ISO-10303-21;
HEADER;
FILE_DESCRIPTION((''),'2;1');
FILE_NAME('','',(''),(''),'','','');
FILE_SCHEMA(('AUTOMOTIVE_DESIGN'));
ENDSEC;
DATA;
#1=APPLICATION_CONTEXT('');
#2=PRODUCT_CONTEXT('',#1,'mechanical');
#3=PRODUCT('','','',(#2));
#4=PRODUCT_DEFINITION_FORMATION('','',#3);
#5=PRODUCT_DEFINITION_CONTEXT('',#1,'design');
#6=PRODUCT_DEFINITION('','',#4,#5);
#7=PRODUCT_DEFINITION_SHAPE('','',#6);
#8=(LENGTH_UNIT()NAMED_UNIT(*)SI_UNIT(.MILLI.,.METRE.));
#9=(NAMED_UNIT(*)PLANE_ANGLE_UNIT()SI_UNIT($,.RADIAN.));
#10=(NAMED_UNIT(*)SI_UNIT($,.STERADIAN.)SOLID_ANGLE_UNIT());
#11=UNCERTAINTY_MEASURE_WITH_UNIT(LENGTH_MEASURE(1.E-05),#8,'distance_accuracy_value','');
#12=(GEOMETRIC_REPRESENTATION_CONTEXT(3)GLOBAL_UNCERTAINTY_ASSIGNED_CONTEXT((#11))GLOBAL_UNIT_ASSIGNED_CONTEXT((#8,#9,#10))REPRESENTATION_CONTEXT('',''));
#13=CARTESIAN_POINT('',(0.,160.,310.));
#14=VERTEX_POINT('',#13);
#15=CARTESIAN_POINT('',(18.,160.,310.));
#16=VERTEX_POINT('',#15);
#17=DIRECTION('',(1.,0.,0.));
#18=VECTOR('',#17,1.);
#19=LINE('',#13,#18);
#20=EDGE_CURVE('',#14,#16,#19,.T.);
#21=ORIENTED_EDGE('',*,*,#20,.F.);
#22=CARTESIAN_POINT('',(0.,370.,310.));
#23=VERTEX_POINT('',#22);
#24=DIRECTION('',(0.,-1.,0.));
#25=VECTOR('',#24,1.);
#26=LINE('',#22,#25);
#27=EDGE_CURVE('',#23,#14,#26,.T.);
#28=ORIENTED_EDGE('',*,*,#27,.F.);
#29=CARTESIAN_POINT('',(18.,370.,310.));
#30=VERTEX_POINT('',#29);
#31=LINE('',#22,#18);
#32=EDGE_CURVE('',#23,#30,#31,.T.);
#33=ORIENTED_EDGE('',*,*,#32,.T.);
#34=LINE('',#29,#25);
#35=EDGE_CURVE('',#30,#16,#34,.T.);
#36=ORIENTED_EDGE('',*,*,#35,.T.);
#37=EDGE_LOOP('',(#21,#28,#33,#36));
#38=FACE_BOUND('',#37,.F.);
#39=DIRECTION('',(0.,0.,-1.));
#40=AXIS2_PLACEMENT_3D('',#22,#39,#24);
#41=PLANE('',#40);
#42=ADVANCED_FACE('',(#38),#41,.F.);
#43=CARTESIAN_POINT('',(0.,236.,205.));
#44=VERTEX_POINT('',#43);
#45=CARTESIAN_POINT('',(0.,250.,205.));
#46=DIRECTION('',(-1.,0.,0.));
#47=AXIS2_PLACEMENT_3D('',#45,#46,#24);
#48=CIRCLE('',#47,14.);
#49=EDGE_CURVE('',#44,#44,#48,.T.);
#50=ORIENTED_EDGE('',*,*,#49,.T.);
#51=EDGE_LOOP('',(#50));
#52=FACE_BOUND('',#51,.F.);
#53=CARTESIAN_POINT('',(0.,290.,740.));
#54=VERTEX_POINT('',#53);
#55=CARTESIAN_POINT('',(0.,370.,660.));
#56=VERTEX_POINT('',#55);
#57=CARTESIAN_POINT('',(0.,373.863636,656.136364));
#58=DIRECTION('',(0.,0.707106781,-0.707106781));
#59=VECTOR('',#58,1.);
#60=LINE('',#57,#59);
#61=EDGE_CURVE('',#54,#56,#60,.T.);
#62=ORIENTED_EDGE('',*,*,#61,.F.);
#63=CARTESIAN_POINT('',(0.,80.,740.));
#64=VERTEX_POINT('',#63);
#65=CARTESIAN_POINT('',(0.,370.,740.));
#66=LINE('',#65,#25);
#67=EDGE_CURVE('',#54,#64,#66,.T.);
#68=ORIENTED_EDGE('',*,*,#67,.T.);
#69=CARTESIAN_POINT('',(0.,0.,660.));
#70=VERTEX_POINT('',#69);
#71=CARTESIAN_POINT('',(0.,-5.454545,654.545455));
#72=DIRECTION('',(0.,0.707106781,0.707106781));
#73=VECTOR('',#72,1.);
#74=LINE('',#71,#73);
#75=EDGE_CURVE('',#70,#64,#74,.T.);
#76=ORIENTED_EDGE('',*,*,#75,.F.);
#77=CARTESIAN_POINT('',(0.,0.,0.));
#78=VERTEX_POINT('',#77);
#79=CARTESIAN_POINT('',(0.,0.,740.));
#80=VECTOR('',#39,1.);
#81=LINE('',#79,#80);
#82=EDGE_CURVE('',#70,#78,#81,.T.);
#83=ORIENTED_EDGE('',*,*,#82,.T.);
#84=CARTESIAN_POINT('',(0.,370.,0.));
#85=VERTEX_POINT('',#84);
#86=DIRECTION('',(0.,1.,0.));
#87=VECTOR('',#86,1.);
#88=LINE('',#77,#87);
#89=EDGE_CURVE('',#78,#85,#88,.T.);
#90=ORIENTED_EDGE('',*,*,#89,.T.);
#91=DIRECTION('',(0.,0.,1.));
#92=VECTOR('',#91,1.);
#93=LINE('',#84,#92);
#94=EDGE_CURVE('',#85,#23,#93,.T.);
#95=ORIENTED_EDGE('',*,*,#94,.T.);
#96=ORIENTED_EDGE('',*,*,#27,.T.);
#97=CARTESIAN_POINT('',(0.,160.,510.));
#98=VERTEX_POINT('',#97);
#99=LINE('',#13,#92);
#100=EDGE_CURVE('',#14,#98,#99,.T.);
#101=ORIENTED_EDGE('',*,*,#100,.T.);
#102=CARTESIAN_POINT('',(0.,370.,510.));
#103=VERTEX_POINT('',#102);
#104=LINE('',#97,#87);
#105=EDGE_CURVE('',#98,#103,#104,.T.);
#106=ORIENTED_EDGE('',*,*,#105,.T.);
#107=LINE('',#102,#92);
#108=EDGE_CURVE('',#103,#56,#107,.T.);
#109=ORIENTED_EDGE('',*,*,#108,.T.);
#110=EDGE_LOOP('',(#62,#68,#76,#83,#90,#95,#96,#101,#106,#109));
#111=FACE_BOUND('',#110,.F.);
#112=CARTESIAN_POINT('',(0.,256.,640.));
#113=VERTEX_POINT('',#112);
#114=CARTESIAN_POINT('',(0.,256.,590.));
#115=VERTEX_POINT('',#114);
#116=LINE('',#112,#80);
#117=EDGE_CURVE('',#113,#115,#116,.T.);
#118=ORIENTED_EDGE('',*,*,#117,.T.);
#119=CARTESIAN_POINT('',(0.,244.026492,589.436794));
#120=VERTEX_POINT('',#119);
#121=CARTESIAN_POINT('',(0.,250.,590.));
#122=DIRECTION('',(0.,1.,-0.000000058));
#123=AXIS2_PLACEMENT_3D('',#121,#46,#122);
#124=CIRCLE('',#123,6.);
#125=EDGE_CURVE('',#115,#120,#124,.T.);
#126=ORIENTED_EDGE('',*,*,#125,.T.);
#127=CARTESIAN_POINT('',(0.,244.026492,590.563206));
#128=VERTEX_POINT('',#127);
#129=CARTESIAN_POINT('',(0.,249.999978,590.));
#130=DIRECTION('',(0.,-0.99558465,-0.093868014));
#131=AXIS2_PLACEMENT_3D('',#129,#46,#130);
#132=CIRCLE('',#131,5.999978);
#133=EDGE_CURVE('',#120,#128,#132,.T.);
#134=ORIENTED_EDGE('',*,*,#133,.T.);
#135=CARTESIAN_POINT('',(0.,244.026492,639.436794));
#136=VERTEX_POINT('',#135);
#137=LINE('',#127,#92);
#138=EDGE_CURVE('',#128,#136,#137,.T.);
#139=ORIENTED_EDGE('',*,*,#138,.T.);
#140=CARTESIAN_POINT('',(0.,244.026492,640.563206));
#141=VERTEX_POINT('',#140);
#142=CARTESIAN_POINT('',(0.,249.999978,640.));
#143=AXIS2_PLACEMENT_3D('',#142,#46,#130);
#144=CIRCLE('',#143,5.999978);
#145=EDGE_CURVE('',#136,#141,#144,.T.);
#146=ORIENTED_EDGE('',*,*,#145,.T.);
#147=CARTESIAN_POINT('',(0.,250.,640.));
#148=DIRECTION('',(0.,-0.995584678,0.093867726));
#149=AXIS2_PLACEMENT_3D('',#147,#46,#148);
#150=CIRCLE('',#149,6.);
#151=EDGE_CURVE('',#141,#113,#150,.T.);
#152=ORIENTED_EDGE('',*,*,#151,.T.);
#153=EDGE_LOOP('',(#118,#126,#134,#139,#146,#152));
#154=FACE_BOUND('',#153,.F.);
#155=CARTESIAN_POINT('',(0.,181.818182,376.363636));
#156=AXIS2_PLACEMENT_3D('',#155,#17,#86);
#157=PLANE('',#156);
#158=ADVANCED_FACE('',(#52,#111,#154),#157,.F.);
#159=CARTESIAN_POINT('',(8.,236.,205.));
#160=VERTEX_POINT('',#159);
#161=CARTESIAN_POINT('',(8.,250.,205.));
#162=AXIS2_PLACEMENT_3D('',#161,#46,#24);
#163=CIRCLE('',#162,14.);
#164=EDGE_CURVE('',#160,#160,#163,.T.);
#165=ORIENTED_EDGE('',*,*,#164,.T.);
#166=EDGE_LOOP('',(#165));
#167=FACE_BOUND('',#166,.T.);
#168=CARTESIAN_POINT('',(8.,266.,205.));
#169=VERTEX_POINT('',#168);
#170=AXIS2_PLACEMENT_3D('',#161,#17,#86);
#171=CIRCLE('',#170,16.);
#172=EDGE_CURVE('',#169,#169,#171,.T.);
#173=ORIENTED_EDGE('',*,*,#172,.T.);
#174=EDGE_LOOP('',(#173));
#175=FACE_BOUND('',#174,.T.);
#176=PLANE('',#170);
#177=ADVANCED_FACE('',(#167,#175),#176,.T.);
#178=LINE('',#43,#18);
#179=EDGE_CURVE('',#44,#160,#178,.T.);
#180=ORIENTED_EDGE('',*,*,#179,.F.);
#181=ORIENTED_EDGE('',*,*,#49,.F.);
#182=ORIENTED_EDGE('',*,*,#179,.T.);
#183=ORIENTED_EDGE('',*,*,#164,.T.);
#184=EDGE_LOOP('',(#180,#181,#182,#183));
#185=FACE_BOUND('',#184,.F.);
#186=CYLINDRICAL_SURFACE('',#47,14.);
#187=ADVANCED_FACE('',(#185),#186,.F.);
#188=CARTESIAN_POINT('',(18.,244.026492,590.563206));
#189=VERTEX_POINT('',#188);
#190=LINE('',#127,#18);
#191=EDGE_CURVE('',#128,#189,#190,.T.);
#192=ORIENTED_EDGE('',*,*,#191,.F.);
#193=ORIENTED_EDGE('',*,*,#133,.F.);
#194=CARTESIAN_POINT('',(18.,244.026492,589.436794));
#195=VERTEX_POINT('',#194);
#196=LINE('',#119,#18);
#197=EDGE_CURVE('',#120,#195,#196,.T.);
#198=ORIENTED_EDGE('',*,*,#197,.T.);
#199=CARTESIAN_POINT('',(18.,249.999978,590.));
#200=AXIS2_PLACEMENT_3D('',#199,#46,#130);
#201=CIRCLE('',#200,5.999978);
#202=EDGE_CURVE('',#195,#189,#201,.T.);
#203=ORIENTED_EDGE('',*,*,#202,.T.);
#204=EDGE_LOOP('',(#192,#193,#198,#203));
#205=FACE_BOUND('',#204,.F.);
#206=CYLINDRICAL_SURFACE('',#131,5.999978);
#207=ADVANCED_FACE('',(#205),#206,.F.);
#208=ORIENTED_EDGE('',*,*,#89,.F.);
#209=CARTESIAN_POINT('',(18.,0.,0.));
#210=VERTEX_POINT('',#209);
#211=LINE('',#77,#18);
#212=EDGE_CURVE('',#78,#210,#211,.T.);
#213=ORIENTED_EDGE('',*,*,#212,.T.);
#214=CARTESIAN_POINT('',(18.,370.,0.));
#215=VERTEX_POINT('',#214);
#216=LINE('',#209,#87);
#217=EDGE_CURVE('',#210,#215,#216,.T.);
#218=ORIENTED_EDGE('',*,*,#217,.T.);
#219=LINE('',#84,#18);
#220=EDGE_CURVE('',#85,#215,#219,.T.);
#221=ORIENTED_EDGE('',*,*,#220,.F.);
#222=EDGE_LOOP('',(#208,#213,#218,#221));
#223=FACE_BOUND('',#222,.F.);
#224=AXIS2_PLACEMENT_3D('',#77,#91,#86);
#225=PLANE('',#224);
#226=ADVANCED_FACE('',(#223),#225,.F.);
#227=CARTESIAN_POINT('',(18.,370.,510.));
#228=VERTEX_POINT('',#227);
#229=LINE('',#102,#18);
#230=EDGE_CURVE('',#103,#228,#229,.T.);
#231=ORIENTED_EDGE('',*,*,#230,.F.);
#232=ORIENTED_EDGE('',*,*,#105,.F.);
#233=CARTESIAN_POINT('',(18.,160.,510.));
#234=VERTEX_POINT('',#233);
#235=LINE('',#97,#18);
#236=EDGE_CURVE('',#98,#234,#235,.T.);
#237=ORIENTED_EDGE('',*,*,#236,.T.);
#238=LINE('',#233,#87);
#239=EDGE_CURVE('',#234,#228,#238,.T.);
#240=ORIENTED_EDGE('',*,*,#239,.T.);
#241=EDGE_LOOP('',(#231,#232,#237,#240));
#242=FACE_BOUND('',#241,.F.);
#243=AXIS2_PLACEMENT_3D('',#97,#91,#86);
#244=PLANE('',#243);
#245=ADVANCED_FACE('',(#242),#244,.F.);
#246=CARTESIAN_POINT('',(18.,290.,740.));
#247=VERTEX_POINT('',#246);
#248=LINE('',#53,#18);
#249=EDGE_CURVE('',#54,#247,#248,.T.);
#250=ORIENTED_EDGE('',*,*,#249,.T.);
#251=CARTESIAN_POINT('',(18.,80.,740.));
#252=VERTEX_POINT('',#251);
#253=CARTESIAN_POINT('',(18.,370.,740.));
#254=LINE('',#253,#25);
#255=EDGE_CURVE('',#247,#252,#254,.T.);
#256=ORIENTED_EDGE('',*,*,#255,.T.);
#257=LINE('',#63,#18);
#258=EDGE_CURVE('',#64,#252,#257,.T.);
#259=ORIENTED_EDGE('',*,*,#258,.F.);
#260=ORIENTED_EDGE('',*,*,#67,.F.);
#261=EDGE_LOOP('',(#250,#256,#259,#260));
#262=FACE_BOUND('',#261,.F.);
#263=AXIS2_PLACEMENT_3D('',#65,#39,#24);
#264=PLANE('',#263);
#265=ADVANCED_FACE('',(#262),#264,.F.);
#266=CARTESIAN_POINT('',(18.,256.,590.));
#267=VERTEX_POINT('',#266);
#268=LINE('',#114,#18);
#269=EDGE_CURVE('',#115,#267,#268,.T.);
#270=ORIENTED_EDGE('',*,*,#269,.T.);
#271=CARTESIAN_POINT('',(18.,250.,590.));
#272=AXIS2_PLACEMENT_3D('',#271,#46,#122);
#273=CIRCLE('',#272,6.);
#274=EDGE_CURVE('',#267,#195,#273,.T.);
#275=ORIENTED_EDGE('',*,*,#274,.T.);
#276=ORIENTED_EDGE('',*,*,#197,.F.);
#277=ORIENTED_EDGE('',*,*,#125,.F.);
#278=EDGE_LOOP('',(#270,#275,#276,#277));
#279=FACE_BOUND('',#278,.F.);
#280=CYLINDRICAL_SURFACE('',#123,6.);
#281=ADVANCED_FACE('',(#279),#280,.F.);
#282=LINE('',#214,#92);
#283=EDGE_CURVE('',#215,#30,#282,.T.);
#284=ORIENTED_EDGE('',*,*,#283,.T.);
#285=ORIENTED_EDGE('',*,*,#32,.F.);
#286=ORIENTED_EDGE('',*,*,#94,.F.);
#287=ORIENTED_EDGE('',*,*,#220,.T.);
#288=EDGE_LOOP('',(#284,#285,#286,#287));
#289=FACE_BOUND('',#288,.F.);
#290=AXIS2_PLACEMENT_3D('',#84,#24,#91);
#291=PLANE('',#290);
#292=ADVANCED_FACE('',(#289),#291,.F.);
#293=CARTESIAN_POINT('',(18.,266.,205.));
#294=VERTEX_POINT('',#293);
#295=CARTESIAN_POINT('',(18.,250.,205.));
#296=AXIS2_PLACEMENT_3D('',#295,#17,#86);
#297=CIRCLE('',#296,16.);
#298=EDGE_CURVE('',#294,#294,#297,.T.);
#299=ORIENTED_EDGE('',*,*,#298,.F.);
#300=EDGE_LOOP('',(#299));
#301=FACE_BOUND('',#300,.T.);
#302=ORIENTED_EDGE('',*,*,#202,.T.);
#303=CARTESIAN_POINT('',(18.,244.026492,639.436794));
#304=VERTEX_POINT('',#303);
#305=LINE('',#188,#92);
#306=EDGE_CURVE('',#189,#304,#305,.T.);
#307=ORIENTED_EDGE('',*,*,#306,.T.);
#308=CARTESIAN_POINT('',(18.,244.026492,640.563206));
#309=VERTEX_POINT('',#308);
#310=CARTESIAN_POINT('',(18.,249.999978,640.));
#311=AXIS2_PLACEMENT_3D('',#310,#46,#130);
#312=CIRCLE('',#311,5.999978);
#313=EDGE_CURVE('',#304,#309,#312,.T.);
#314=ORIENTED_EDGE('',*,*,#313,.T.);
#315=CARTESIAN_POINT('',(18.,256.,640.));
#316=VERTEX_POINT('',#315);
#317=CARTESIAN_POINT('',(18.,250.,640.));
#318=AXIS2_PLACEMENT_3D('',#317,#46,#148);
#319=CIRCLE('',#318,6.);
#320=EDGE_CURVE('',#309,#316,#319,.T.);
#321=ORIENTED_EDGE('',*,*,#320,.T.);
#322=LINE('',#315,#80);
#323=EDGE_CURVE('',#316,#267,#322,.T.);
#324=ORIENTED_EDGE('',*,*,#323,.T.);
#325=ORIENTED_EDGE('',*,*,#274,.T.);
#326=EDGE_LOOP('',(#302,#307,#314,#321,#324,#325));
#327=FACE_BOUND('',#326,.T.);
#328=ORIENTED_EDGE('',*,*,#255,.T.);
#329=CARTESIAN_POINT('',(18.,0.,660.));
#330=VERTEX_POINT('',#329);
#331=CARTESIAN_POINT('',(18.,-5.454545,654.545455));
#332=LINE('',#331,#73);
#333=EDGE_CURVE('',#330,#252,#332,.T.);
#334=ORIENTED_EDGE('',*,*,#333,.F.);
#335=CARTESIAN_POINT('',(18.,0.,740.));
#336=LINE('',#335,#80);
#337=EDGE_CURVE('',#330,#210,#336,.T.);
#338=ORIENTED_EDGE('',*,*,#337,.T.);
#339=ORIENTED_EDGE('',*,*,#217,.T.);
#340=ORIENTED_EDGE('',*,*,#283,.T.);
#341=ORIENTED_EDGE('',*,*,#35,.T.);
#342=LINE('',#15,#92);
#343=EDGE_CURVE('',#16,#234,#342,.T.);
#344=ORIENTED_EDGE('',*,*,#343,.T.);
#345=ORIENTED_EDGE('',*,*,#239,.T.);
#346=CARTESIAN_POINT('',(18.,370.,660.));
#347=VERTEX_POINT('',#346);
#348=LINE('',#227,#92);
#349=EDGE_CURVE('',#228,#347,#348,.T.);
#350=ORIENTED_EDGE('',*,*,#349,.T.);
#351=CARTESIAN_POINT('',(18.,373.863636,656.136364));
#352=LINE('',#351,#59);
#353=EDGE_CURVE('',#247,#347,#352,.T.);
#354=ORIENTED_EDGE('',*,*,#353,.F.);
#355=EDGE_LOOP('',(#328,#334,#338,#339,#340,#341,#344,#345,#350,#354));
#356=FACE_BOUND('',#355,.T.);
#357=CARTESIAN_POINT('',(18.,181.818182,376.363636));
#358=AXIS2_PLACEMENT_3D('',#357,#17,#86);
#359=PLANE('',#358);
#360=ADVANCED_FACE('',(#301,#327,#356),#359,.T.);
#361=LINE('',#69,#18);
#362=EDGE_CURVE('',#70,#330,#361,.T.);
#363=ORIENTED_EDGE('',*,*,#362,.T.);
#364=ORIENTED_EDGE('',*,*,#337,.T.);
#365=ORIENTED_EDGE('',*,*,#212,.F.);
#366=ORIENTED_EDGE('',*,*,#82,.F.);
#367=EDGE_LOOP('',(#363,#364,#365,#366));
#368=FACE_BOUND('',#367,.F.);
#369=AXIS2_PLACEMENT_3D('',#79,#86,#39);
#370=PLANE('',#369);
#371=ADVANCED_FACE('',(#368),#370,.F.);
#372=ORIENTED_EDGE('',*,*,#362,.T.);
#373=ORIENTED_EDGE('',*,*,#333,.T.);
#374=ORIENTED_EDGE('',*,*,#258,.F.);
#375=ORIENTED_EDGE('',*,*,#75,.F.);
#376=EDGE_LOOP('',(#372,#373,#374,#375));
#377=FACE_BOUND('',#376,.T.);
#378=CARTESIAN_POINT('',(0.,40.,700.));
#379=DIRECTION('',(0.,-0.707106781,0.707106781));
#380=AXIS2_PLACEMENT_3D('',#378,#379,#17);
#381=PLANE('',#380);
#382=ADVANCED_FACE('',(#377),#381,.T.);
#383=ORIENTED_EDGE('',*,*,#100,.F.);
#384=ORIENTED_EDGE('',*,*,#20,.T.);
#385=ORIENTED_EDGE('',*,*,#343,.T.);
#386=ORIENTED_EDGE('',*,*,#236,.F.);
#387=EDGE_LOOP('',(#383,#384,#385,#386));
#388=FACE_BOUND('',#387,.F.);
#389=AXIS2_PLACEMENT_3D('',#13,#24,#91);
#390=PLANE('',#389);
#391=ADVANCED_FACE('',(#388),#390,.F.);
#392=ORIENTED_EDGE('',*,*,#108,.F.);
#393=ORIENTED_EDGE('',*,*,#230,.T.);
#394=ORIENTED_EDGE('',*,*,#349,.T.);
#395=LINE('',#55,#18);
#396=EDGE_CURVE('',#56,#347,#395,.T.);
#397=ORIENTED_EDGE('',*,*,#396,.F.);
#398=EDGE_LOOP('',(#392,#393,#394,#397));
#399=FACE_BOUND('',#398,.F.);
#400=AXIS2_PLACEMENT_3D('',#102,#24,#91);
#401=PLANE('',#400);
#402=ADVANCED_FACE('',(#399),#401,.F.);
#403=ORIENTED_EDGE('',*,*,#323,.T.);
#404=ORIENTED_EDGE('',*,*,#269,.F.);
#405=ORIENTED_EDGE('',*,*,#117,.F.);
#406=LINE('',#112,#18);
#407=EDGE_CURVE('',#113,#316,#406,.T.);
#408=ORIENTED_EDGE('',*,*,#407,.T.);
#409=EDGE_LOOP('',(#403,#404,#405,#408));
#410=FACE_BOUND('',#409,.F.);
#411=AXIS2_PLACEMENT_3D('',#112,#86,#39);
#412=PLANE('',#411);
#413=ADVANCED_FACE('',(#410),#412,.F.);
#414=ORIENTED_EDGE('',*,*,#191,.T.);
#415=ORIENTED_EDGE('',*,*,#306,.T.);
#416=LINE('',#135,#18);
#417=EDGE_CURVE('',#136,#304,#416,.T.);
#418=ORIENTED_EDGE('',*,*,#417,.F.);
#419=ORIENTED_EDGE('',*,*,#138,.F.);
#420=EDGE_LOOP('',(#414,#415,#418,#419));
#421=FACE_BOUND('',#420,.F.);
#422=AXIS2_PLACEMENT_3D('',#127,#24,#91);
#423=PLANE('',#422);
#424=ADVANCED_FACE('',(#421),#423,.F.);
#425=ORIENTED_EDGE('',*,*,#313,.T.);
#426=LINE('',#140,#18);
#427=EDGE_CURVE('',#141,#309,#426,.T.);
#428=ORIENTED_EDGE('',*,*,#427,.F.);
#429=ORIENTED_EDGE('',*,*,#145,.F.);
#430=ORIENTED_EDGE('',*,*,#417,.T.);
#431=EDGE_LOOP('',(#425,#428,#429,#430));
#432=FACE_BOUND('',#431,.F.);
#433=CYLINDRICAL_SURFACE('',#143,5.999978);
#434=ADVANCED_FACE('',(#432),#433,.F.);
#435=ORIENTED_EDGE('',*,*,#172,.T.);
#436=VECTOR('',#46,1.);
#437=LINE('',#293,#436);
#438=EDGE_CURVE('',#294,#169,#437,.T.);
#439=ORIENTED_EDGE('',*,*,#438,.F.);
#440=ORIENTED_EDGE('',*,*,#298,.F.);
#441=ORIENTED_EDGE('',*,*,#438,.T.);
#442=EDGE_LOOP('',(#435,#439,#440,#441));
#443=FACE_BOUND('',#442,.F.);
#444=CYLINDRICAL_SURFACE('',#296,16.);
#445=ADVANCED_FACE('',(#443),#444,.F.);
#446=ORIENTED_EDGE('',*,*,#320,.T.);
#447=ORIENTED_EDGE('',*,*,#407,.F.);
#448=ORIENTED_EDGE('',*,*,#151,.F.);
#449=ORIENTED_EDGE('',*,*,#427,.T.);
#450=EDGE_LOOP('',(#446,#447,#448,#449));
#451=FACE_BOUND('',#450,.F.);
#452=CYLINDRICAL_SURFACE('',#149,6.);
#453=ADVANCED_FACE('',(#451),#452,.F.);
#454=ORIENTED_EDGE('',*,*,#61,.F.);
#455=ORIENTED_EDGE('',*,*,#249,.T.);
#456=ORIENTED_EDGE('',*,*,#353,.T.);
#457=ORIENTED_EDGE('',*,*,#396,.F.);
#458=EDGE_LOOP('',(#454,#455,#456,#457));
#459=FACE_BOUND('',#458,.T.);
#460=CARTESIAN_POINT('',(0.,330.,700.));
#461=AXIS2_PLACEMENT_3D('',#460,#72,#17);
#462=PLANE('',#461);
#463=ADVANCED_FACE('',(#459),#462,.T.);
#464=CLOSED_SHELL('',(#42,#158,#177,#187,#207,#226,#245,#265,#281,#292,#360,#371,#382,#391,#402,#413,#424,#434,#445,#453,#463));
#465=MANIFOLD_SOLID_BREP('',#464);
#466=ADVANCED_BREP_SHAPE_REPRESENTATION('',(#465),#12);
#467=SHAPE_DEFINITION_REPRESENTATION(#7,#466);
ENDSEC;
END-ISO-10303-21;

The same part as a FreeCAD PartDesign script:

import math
import FreeCAD as App
import Part
import Sketcher

V = App.Vector


def edges_at(feature, points):
    """Names of the edges that pass closest to the given points."""
    edges = feature.Shape.Edges
    near = lambda p: min(range(len(edges)), key=lambda i: edges[i].distToShape(Part.Vertex(*p))[0])
    return sorted({f"Edge{near(p) + 1}" for p in points})


def add_polygon(sketch, points):
    """Adds a closed chain of lines whose ends are joined by coincident constraints."""
    first, n = sketch.GeometryCount, len(points)
    for a, b in zip(points, points[1:] + points[:1]):
        sketch.addGeometry(Part.LineSegment(App.Vector(*a, 0), App.Vector(*b, 0)), False)
    for i in range(n):
        sketch.addConstraint(Sketcher.Constraint("Coincident", first + i, 2, first + (i + 1) % n, 1))

doc = App.newDocument("Part")
body = doc.addObject("PartDesign::Body", "Body")

sketch1 = body.newObject("Sketcher::SketchObject", "Sketch")
sketch1.AttachmentSupport = (doc.getObject("YZ_Plane"), [""])
sketch1.MapMode = "FlatFace"
add_polygon(sketch1, [(0, 740), (0, 0), (370, 0), (370, 310), (160, 310), (160, 510), (370, 510), (370, 740)])
sketch1.addGeometry(Part.Circle(V(250, 205, 0), V(0, 0, 1), 6), False)
sketch1.addGeometry(Part.ArcOfCircle(Part.Circle(V(249.999978, 640, 0), V(0, 0, 1), 5.999978), math.radians(174.613829), math.radians(185.386171)), False)
sketch1.addGeometry(Part.ArcOfCircle(Part.Circle(V(250, 640, 0), V(0, 0, 1), 6), math.radians(0.000003), math.radians(174.613846)), False)
sketch1.addGeometry(Part.LineSegment(V(256, 640, 0), V(256, 590, 0)), False)
sketch1.addGeometry(Part.ArcOfCircle(Part.Circle(V(250, 590, 0), V(0, 0, 1), 6), math.radians(-174.613846), math.radians(-0.000003)), False)
sketch1.addGeometry(Part.ArcOfCircle(Part.Circle(V(249.999978, 590, 0), V(0, 0, 1), 5.999978), math.radians(174.613829), math.radians(185.386171)), False)
sketch1.addGeometry(Part.LineSegment(V(244.026492, 590.563206, 0), V(244.026492, 639.436794, 0)), False)
sketch1.addConstraint([
    Sketcher.Constraint("Coincident", 9, 1, 10, 2),
    Sketcher.Constraint("Coincident", 10, 1, 11, 1),
    Sketcher.Constraint("Coincident", 11, 2, 12, 2),
    Sketcher.Constraint("Coincident", 12, 1, 13, 2),
    Sketcher.Constraint("Coincident", 13, 1, 14, 1),
    Sketcher.Constraint("Coincident", 14, 2, 9, 2),
    Sketcher.Constraint("Vertical", 0),
    Sketcher.Constraint("Horizontal", 1),
    Sketcher.Constraint("Vertical", 2),
    Sketcher.Constraint("Horizontal", 3),
    Sketcher.Constraint("Vertical", 4),
    Sketcher.Constraint("Horizontal", 5),
    Sketcher.Constraint("Vertical", 6),
    Sketcher.Constraint("Horizontal", 7),
    Sketcher.Constraint("Vertical", 11),
    Sketcher.Constraint("Vertical", 14),
    Sketcher.Constraint("Coincident", 0, 2, -1, 1),
    Sketcher.Constraint("Diameter", 8, 12.0),
    Sketcher.Constraint("Radius", 10, 6.0),
    Sketcher.Constraint("Radius", 12, 6.0),
    Sketcher.Constraint("DistanceX", 1, 1, 1, 2, 370.0),
    Sketcher.Constraint("DistanceX", 3, 2, 3, 1, 210.0),
    Sketcher.Constraint("DistanceX", 5, 1, 5, 2, 210.0),
    Sketcher.Constraint("DistanceY", 0, 2, 0, 1, 740.0),
    Sketcher.Constraint("DistanceY", 2, 1, 2, 2, 310.0),
    Sketcher.Constraint("DistanceY", 4, 1, 4, 2, 200.0),
    Sketcher.Constraint("DistanceY", 11, 2, 11, 1, 50.0),
    Sketcher.Constraint("DistanceX", -1, 1, 8, 3, 250.0),
    Sketcher.Constraint("DistanceY", -1, 1, 8, 3, 205.0),
    Sketcher.Constraint("DistanceY", -1, 1, 9, 3, 640.0),
    Sketcher.Constraint("DistanceX", -1, 1, 10, 3, 250.0),
    Sketcher.Constraint("DistanceY", -1, 1, 10, 3, 640.0),
    Sketcher.Constraint("DistanceY", -1, 1, 12, 3, 590.0),
    Sketcher.Constraint("DistanceY", -1, 1, 13, 3, 590.0),
    Sketcher.Constraint("DistanceY", -1, 1, 10, 1, 640.0),
    Sketcher.Constraint("Radius", 9, 5.999978),
    Sketcher.Constraint("Radius", 13, 5.999978),
    Sketcher.Constraint("DistanceY", 14, 1, 14, 2, 48.873588),
    Sketcher.Constraint("DistanceX", 9, 1, 10, 3, 5.973508),
    Sketcher.Constraint("DistanceX", 12, 1, 12, 3, 5.973508),
])
pad1 = body.newObject("PartDesign::Pad", "Pad")
pad1.Profile = sketch1
pad1.Length = 18
doc.recompute()

chamfer = body.newObject("PartDesign::Chamfer", "Chamfer")
chamfer.Base = (pad1, edges_at(pad1, [(9, 0, 740), (9, 370, 740)]))
chamfer.Size = 80

sketch2 = body.newObject("Sketcher::SketchObject", "Sketch001")
sketch2.AttachmentSupport = (doc.getObject("YZ_Plane"), [""])
sketch2.MapMode = "FlatFace"
sketch2.AttachmentOffset = App.Placement(V(0, 0, 18), App.Rotation())
sketch2.addGeometry(Part.Circle(V(250, 205, 0), V(0, 0, 1), 16), False)
sketch2.addConstraint([
    Sketcher.Constraint("Diameter", 0, 32.0),
    Sketcher.Constraint("DistanceX", -1, 1, 0, 3, 250.0),
    Sketcher.Constraint("DistanceY", -1, 1, 0, 3, 205.0),
])
pocket1 = body.newObject("PartDesign::Pocket", "Pocket")
pocket1.Profile = sketch2
pocket1.Length = 10

sketch3 = body.newObject("Sketcher::SketchObject", "Sketch002")
sketch3.AttachmentSupport = (doc.getObject("YZ_Plane"), [""])
sketch3.MapMode = "FlatFace"
sketch3.addGeometry(Part.Circle(V(250, 205, 0), V(0, 0, 1), 14), False)
sketch3.addConstraint([
    Sketcher.Constraint("Diameter", 0, 28.0),
    Sketcher.Constraint("DistanceX", -1, 1, 0, 3, 250.0),
    Sketcher.Constraint("DistanceY", -1, 1, 0, 3, 205.0),
])
pocket2 = body.newObject("PartDesign::Pocket", "Pocket001")
pocket2.Profile = sketch3
pocket2.Length = 8
pocket2.Reversed = True

doc.recompute()
